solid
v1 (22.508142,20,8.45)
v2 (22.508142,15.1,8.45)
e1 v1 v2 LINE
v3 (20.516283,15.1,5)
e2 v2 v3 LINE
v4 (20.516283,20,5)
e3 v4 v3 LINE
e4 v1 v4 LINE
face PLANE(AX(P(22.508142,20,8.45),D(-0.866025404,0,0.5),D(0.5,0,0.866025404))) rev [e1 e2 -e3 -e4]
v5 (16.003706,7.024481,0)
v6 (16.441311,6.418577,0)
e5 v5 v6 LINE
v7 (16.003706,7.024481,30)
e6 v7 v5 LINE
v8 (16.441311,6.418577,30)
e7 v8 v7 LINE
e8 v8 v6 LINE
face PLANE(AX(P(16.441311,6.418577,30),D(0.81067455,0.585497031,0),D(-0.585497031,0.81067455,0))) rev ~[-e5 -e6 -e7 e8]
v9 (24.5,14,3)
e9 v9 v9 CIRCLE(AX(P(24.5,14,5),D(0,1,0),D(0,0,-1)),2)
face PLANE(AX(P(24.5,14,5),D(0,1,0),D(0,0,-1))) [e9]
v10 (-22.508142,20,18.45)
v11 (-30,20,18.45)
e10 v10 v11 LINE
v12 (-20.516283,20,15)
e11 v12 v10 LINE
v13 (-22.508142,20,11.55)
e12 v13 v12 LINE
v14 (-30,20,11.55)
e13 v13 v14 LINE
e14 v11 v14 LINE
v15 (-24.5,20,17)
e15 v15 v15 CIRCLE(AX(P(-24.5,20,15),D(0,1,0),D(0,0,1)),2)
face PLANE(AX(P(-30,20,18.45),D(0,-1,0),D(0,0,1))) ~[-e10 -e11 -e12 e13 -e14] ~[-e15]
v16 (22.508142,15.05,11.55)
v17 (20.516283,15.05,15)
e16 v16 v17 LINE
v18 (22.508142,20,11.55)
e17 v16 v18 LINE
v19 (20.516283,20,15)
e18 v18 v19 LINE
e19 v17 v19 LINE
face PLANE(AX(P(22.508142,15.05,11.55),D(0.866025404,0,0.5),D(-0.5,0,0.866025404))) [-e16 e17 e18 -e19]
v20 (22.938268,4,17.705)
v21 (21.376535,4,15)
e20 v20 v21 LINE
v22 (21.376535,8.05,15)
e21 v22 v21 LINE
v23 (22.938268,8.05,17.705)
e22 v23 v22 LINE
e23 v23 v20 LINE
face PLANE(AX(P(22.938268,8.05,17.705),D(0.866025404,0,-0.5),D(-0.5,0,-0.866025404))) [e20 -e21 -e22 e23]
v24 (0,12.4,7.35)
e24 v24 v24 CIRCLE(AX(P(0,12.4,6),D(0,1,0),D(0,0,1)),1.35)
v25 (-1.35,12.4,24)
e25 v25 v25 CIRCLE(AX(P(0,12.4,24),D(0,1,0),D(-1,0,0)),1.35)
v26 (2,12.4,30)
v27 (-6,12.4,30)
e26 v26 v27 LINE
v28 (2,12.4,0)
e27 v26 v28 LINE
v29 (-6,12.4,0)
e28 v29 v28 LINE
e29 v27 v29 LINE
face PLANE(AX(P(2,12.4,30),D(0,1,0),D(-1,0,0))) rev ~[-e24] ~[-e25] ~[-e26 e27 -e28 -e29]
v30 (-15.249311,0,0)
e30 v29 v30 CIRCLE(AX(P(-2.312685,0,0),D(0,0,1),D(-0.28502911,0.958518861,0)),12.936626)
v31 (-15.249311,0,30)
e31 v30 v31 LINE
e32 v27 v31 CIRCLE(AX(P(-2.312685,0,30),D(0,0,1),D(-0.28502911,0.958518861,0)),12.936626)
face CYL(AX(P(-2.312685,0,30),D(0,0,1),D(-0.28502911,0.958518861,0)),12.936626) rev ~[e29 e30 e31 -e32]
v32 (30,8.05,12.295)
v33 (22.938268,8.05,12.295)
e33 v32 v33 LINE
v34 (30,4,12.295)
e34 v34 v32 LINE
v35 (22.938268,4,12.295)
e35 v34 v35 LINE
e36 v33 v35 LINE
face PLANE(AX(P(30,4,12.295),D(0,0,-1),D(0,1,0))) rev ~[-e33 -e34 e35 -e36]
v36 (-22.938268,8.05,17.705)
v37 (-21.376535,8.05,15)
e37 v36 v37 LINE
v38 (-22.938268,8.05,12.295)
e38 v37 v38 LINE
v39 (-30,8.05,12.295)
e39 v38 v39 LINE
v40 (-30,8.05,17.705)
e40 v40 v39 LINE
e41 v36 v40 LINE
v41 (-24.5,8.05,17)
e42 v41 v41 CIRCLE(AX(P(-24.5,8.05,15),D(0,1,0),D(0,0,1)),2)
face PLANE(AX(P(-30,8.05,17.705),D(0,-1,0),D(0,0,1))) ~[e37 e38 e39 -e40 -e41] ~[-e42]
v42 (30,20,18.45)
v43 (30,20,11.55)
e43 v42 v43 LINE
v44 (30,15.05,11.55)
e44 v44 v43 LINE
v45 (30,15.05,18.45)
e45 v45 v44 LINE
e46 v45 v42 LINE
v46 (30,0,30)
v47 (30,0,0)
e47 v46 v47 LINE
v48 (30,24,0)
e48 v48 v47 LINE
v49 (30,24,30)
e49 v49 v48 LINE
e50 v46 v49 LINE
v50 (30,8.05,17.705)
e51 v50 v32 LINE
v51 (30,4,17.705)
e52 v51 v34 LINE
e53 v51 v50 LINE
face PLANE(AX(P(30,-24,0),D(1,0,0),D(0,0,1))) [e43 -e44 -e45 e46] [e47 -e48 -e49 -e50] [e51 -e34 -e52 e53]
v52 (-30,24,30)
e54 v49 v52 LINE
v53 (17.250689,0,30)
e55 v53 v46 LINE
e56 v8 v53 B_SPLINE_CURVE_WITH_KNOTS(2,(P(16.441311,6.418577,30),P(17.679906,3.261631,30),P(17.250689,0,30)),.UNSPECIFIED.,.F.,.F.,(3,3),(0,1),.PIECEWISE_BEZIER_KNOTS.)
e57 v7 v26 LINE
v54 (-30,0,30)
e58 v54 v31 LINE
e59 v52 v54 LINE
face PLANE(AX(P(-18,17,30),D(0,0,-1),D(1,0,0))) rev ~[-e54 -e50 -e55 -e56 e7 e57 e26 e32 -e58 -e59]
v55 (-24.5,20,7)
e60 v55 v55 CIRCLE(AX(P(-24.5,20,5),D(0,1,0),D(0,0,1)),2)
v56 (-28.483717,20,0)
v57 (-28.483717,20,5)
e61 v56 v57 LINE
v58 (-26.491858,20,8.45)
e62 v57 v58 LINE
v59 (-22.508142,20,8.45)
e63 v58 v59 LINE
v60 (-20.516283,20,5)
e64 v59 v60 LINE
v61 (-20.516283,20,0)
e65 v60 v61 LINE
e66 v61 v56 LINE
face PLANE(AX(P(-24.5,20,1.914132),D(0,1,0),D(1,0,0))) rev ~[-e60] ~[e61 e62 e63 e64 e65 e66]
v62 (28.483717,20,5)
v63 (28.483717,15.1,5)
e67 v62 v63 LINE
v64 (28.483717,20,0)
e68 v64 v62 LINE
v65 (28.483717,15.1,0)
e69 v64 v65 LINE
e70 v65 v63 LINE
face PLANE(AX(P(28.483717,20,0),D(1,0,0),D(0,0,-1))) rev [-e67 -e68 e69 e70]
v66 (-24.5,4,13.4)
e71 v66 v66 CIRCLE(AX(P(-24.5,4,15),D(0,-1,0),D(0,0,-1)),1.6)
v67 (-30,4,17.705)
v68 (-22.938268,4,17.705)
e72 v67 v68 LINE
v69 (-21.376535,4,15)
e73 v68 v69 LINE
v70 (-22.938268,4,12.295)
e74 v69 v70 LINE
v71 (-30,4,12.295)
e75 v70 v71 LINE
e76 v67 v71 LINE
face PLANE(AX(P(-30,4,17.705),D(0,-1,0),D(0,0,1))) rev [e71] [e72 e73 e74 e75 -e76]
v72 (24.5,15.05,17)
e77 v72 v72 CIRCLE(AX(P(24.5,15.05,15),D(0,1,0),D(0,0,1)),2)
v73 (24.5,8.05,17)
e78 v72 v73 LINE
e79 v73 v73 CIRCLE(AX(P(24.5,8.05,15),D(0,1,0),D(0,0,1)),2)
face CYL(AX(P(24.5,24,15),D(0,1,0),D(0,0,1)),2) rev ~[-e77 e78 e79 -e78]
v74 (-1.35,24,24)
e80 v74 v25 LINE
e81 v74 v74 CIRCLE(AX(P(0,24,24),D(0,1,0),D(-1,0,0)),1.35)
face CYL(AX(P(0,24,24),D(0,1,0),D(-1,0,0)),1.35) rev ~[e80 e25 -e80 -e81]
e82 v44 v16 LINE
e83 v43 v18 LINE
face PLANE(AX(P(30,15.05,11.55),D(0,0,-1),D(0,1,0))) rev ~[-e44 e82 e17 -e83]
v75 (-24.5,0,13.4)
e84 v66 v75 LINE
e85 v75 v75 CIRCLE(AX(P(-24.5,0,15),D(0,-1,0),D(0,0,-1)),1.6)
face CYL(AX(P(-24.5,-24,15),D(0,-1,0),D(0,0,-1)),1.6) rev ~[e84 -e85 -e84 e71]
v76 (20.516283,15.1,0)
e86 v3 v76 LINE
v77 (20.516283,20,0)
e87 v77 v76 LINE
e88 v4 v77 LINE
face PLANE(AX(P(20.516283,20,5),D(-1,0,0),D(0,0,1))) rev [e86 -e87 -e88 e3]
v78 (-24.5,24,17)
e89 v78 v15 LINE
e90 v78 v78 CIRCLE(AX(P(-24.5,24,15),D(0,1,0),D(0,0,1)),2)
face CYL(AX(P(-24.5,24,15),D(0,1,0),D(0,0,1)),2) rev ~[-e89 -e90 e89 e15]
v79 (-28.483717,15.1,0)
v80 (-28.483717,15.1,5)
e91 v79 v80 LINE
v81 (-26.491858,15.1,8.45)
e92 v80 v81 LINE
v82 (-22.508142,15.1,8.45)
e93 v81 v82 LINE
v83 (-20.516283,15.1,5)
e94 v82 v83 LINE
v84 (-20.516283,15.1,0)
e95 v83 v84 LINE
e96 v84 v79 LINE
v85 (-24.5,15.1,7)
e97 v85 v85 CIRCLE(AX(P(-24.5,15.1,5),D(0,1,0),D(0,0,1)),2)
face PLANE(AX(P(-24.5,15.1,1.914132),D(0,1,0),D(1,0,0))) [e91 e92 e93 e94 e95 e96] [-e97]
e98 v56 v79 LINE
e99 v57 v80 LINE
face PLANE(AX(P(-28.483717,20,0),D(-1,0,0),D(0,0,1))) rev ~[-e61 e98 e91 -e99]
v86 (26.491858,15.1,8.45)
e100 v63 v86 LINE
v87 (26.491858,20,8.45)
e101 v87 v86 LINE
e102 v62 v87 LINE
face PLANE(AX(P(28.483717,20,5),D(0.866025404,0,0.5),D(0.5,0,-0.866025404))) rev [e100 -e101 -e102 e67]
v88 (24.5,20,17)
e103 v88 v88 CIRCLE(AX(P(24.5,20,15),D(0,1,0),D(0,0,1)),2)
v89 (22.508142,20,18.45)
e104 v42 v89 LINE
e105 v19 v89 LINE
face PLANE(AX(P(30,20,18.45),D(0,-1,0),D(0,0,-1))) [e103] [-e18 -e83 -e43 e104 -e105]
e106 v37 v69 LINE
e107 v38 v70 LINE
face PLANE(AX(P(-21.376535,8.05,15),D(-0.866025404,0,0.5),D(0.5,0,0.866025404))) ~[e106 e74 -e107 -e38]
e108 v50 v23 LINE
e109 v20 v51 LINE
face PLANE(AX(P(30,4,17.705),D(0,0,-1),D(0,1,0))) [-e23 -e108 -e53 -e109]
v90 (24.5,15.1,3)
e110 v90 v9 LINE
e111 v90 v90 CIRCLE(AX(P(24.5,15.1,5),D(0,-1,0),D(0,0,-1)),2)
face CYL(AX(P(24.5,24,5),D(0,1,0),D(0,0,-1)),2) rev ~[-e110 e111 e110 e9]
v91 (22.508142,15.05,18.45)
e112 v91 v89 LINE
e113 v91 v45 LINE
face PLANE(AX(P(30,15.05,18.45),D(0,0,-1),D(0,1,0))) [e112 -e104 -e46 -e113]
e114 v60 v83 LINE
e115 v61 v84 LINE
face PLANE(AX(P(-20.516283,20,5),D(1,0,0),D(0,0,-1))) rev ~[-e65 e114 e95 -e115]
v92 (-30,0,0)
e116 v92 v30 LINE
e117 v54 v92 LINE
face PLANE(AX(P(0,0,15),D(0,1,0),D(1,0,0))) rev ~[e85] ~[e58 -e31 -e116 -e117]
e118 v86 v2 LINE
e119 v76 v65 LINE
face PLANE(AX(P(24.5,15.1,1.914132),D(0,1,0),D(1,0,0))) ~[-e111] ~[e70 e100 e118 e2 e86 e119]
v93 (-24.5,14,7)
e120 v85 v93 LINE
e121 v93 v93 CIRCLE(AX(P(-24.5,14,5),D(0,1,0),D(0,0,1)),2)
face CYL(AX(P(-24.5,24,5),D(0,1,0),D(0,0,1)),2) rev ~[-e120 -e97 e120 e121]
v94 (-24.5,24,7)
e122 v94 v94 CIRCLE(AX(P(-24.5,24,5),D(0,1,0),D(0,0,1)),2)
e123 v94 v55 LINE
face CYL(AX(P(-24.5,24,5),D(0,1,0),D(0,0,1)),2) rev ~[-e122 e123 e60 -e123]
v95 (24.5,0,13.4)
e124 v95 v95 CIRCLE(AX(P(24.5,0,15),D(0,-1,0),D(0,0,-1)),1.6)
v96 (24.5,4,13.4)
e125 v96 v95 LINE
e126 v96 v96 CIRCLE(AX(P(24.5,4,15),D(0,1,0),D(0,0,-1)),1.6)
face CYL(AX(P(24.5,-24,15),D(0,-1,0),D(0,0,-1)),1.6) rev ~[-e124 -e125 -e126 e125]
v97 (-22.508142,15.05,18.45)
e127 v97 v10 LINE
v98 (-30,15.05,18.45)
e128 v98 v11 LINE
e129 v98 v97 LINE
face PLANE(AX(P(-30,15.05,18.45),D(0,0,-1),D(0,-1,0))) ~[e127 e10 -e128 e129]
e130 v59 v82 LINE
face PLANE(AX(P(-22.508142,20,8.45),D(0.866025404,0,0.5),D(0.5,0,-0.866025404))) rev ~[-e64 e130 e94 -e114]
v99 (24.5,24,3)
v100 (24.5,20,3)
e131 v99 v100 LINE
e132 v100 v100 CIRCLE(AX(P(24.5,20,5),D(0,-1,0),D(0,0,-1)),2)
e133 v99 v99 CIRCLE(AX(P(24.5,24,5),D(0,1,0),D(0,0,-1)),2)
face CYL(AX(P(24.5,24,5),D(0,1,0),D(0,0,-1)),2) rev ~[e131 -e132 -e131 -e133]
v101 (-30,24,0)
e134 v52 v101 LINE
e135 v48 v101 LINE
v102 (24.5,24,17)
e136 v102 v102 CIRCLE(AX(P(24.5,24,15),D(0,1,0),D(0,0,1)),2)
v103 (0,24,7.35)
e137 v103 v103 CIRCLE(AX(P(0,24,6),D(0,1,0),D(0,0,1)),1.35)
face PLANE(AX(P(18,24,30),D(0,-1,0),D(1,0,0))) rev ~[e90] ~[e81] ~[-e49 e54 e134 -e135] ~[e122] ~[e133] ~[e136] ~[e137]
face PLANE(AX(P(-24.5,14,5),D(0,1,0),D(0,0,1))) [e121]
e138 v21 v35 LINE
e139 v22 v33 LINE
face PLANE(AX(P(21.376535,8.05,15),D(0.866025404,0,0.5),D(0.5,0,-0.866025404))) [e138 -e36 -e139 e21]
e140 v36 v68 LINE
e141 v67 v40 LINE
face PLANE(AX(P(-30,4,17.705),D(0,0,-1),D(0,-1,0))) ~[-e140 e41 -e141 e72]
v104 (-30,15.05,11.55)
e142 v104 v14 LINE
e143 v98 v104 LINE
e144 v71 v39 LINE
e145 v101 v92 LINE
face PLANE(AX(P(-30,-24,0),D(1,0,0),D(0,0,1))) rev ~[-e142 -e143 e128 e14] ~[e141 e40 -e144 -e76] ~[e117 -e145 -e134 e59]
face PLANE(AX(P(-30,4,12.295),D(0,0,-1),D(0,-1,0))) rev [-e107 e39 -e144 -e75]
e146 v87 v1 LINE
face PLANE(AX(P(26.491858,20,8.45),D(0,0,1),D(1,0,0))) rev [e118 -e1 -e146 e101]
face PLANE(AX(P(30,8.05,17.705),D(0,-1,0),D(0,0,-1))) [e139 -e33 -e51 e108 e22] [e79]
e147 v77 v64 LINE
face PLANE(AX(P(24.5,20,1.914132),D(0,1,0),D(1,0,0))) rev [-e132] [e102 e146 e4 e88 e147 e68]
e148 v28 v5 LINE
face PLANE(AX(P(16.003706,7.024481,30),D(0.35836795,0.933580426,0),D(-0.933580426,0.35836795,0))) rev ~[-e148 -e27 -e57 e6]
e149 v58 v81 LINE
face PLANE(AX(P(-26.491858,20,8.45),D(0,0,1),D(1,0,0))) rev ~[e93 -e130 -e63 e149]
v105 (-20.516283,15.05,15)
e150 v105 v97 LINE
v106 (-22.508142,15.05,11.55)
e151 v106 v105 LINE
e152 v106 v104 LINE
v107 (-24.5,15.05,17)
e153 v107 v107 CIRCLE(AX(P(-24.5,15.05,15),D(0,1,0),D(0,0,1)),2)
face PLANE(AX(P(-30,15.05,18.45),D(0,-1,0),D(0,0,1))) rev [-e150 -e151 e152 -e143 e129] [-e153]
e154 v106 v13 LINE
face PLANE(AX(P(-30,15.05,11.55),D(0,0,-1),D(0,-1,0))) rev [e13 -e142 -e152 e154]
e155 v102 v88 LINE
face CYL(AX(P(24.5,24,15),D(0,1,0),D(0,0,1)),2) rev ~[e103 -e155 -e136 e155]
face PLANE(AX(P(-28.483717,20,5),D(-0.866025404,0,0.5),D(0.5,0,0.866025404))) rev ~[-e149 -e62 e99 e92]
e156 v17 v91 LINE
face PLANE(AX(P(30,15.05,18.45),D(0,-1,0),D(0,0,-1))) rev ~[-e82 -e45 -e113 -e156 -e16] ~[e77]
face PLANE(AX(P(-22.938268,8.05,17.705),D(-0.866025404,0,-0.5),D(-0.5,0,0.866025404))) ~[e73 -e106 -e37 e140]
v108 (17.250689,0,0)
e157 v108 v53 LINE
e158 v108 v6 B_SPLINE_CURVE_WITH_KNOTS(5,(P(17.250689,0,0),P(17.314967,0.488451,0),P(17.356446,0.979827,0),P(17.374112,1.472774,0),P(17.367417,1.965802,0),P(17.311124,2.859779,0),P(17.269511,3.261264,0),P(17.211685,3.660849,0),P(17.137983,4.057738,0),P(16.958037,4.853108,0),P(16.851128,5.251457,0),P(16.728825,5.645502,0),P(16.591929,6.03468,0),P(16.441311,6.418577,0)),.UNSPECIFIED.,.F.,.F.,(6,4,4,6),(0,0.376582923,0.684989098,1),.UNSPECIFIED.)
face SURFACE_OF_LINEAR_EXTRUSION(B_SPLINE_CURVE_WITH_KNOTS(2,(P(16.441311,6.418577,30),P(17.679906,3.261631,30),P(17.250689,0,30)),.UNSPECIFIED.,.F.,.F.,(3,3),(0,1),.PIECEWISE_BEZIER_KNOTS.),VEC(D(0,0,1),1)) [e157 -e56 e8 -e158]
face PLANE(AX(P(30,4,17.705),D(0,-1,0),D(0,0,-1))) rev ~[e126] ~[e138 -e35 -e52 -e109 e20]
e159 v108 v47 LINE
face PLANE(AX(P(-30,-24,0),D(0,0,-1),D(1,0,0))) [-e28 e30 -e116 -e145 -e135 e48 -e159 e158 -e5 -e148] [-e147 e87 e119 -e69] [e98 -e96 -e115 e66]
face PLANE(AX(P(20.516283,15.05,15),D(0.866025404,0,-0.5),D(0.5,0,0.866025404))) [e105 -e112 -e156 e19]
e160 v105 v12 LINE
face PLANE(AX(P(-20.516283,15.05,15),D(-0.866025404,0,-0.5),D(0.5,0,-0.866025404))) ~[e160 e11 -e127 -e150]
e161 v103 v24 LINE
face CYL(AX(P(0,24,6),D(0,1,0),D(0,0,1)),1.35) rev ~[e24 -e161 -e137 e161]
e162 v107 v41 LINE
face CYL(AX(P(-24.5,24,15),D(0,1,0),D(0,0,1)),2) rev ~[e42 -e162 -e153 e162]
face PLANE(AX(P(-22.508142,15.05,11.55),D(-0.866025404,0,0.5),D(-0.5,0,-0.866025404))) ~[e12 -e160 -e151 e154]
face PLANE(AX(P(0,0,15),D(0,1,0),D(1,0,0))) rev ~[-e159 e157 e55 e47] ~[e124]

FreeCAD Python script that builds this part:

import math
import FreeCAD as App
import Part
import Sketcher

V = App.Vector
Q = App.Units.Quantity

doc = App.newDocument("Part")
params = doc.addObject("Spreadsheet::Sheet", "Params")
for row, (alias, value) in enumerate([
    ("sketch1_width", "60 mm"),
    ("sketch1_height", "34 mm"),
    ("pad1_length", "30 mm"),
    ("sketch2_width", "12 mm"),
    ("sketch2_height", "23 mm"),
    ("pad2_length", "80 mm"),
    ("sketch3_diameter", "4 mm"),
    ("pocket1_length", "10 mm"),
    ("sketch4_width", "8 mm"),
    ("sketch4_length", "15 mm"),
    ("pocket2_length", "66 mm"),
    ("sketch5_width", "17.2 mm"),
    ("sketch5_height", "4.5 mm"),
    ("pocket3_length", "8.8 mm"),
    ("sketch6_diameter", "3.2 mm"),
    ("sketch7_diameter", "3.2 mm"),
    ("sketch7_width", "60 mm"),
    ("sketch7_height", "30 mm"),
    ("pad3_length", "7 mm"),
    ("sketch8_width", "36 mm"),
    ("sketch8_height", "30 mm"),
    ("pad4_length", "7 mm"),
    ("sketch9_width", "12 mm"),
    ("sketch9_height", "50 mm"),
    ("sketch10_width", "12 mm"),
    ("sketch10_height", "16 mm"),
    ("sketch11_width", "12 mm"),
    ("sketch11_height", "23 mm"),
    ("pocket7_length", "50 mm"),
    ("sketch12_width", "12 mm"),
    ("sketch12_height", "16 mm"),
    ("sketch13_width", "60 mm"),
    ("sketch13_height", "30 mm"),
    ("pocket9_length", "34 mm"),
    ("sketch14_height", "6.9 mm"),
    ("sketch14_width", "4.95 mm"),
    ("sketch14_height2", "5.41 mm"),
    ("pocket10_length", "5.5 mm"),
    ("sketch16_diameter", "2.7 mm"),
    ("sketch17_diameter", "3.8 mm"),
    ("pocket13_length", "7 mm"),
    ("sketch18_diameter", "4 mm"),
    ("pocket14_length", "10 mm"),
    ("sketch19_diameter", "4 mm"),
    ("sketch19_height", "5 mm"),
    ("pocket15_length", "4.9 mm"),
    ("pocket16_length", "4.05 mm"),
    ("pocket17_length", "4.95 mm"),
    ("sketch22_diameter", "4 mm"),
    ("pocket18_length", "4 mm"),
    ("pocket19_length", "15.95 mm"),
    ("sketch23_diameter", "4 mm"),
    ("pocket20_length", "4 mm"),
    ("pocket21_length", "15.95 mm"),
], start=1):
    params.set(f"A{row}", alias)
    params.set(f"B{row}", "=" + value)
    params.setAlias(f"B{row}", alias)

body = doc.addObject("PartDesign::Body", "Body")

sketch1 = doc.addObject("Sketcher::SketchObject", "Sketch")
body.addObject(sketch1)
sketch1.AttachmentSupport = (doc.XY_Plane, [""])
sketch1.MapMode = "FlatFace"
sketch1.addGeometry([
    Part.LineSegment(V(-30, 17, 0), V(-30, -17, 0)),
    Part.LineSegment(V(-30, -17, 0), V(30, -17, 0)),
    Part.LineSegment(V(30, -17, 0), V(30, 17, 0)),
    Part.LineSegment(V(30, 17, 0), V(-30, 17, 0)),
], False)
sketch1.addConstraint([
    Sketcher.Constraint("Coincident", 0, 2, 1, 1),
    Sketcher.Constraint("Coincident", 1, 2, 2, 1),
    Sketcher.Constraint("Coincident", 2, 2, 3, 1),
    Sketcher.Constraint("Coincident", 3, 2, 0, 1),
    Sketcher.Constraint("Vertical", 0),
    Sketcher.Constraint("Horizontal", 1),
    Sketcher.Constraint("Vertical", 2),
    Sketcher.Constraint("Horizontal", 3),
    Sketcher.Constraint("Symmetric", 0, 2, 2, 2, -1, 1),
    Sketcher.Constraint("DistanceX", 1, 1, 1, 2, 60.0),
    Sketcher.Constraint("DistanceY", 0, 2, 0, 1, 34.0),
])
sketch1.setExpression("Constraints[9]", "Params.sketch1_width")
sketch1.setExpression("Constraints[10]", "Params.sketch1_height")
pad1 = doc.addObject("PartDesign::Pad", "Pad")
body.addObject(pad1)
pad1.Profile = sketch1
pad1.setExpression("Length", "Params.pad1_length")

sketch2 = doc.addObject("Sketcher::SketchObject", "Sketch001")
body.addObject(sketch2)
sketch2.AttachmentSupport = (doc.XY_Plane, [""])
sketch2.MapMode = "FlatFace"
sketch2.addGeometry([
    Part.LineSegment(V(-18, 40, 0), V(-18, 17, 0)),
    Part.LineSegment(V(-18, 17, 0), V(-30, 17, 0)),
    Part.LineSegment(V(-30, 17, 0), V(-30, 40, 0)),
    Part.LineSegment(V(-30, 40, 0), V(-18, 40, 0)),
    Part.LineSegment(V(30, 40, 0), V(30, 17, 0)),
    Part.LineSegment(V(30, 17, 0), V(18, 17, 0)),
    Part.LineSegment(V(18, 17, 0), V(18, 40, 0)),
    Part.LineSegment(V(18, 40, 0), V(30, 40, 0)),
], False)
sketch2.addConstraint([
    Sketcher.Constraint("Coincident", 0, 2, 1, 1),
    Sketcher.Constraint("Coincident", 1, 2, 2, 1),
    Sketcher.Constraint("Coincident", 2, 2, 3, 1),
    Sketcher.Constraint("Coincident", 3, 2, 0, 1),
    Sketcher.Constraint("Coincident", 4, 2, 5, 1),
    Sketcher.Constraint("Coincident", 5, 2, 6, 1),
    Sketcher.Constraint("Coincident", 6, 2, 7, 1),
    Sketcher.Constraint("Coincident", 7, 2, 4, 1),
    Sketcher.Constraint("Vertical", 0),
    Sketcher.Constraint("Horizontal", 1),
    Sketcher.Constraint("Vertical", 2),
    Sketcher.Constraint("Horizontal", 3),
    Sketcher.Constraint("Vertical", 4),
    Sketcher.Constraint("Horizontal", 5),
    Sketcher.Constraint("Vertical", 6),
    Sketcher.Constraint("Horizontal", 7),
    Sketcher.Constraint("Symmetric", 1, 2, 4, 2, -2),
    Sketcher.Constraint("Symmetric", 3, 2, 6, 2, -2),
    Sketcher.Constraint("DistanceX", 1, 2, 1, 1, 12.0),
    Sketcher.Constraint("DistanceY", 0, 2, 0, 1, 23.0),
    Sketcher.Constraint("DistanceX", 0, 2, -1, 1, 18.0),
    Sketcher.Constraint("DistanceY", -1, 1, 0, 2, 17.0),
])
sketch2.setExpression("Constraints[18]", "Params.sketch2_width")
sketch2.setExpression("Constraints[19]", "Params.sketch2_height")
pad2 = doc.addObject("PartDesign::Pad", "Pad001")
body.addObject(pad2)
pad2.Profile = sketch2
pad2.setExpression("Length", "Params.pad2_length")

sketch3 = doc.addObject("Sketcher::SketchObject", "Sketch002")
body.addObject(sketch3)
sketch3.AttachmentSupport = (doc.XY_Plane, [""])
sketch3.MapMode = "FlatFace"
sketch3.AttachmentOffset = App.Placement(V(0, 0, 80), App.Rotation())
sketch3.addGeometry([
    Part.Circle(V(24.5, 34, 0), V(0, 0, 1), 2),
    Part.Circle(V(24.5, 24, 0), V(0, 0, 1), 2),
    Part.Circle(V(-24.5, 24, 0), V(0, 0, 1), 2),
    Part.Circle(V(-24.5, 34, 0), V(0, 0, 1), 2),
], False)
sketch3.addConstraint([
    Sketcher.Constraint("Equal", 0, 1),
    Sketcher.Constraint("Equal", 1, 2),
    Sketcher.Constraint("Equal", 2, 3),
    Sketcher.Constraint("Symmetric", 1, 3, 2, 3, -2),
    Sketcher.Constraint("Symmetric", 0, 3, 3, 3, -2),
    Sketcher.Constraint("Vertical", 0, 3, 1, 3),
    Sketcher.Constraint("Diameter", 0, 4.0),
    Sketcher.Constraint("DistanceY", -1, 1, 0, 3, 34.0),
    Sketcher.Constraint("DistanceY", -1, 1, 1, 3, 24.0),
    Sketcher.Constraint("DistanceX", 2, 3, 1, 3, 49.0),
])
sketch3.setExpression("Constraints[6]", "Params.sketch3_diameter")
pocket1 = doc.addObject("PartDesign::Pocket", "Pocket")
body.addObject(pocket1)
pocket1.Profile = sketch3
pocket1.setExpression("Length", "Params.pocket1_length")

sketch4 = doc.addObject("Sketcher::SketchObject", "Sketch003")
body.addObject(sketch4)
sketch4.AttachmentSupport = (doc.XY_Plane, [""])
sketch4.MapMode = "FlatFace"
sketch4.AttachmentOffset = App.Placement(V(0, 0, 30), App.Rotation())
sketch4.addGeometry([
    Part.LineSegment(V(2, 12, 0), V(-6, 12, 0)),
    Part.ArcOfCircle(Part.Circle(V(-2, 0, 0), V(0, 0, 1), 13), math.radians(107), math.radians(253)),
    Part.LineSegment(V(-6, -12, 0), V(2, -12, 0)),
    Part.LineSegment(V(2, -12, 0), V(16, -7, 0)),
    Part.ArcOfCircle(Part.Circle(V(-3, 0, 0), V(0, 0, 1), 20), math.radians(-20), math.radians(20)),
    Part.LineSegment(V(16, 7, 0), V(2, 12, 0)),
], False)
sketch4.addConstraint([
    Sketcher.Constraint("Coincident", 0, 2, 1, 1),
    Sketcher.Constraint("Coincident", 1, 2, 2, 1),
    Sketcher.Constraint("Coincident", 2, 2, 3, 1),
    Sketcher.Constraint("Coincident", 3, 2, 4, 1),
    Sketcher.Constraint("Coincident", 4, 2, 5, 1),
    Sketcher.Constraint("Coincident", 5, 2, 0, 1),
    Sketcher.Constraint("Horizontal", 0),
    Sketcher.Constraint("Horizontal", 2),
    Sketcher.Constraint("Symmetric", 0, 2, 1, 2, -1),
    Sketcher.Constraint("Symmetric", 3, 2, 4, 2, -1),
    Sketcher.Constraint("Vertical", 2, 2, 5, 2),
    Sketcher.Constraint("DistanceX", 0, 2, 0, 1, 8.0),
    Sketcher.Constraint("Angle", 3, Q("21 deg")),
    Sketcher.Constraint("Distance", 3, 15.0),
    Sketcher.Constraint("DistanceX", 0, 2, -1, 1, 6.0),
    Sketcher.Constraint("DistanceY", -1, 1, 0, 2, 12.4),
    Sketcher.Constraint("Radius", 1, 12.936626),
    Sketcher.Constraint("Radius", 4, 20.408583),
])
sketch4.setExpression("Constraints[11]", "Params.sketch4_width")
sketch4.setExpression("Constraints[13]", "Params.sketch4_length")
pocket2 = doc.addObject("PartDesign::Pocket", "Pocket001")
body.addObject(pocket2)
pocket2.Profile = sketch4
pocket2.setExpression("Length", "Params.pocket2_length")

sketch5 = doc.addObject("Sketcher::SketchObject", "Sketch004")
body.addObject(sketch5)
sketch5.AttachmentSupport = (doc.YZ_Plane, [""])
sketch5.MapMode = "FlatFace"
sketch5.AttachmentOffset = App.Placement(V(0, 0, 30), App.Rotation())
sketch5.addGeometry([
    Part.LineSegment(V(37.4, 70, 0), V(20.2, 70, 0)),
    Part.LineSegment(V(20.2, 70, 0), V(20.2, 65.5, 0)),
    Part.LineSegment(V(20.2, 65.5, 0), V(37.4, 65.5, 0)),
    Part.LineSegment(V(37.4, 65.5, 0), V(37.4, 70, 0)),
], False)
sketch5.addConstraint([
    Sketcher.Constraint("Coincident", 0, 2, 1, 1),
    Sketcher.Constraint("Coincident", 1, 2, 2, 1),
    Sketcher.Constraint("Coincident", 2, 2, 3, 1),
    Sketcher.Constraint("Coincident", 3, 2, 0, 1),
    Sketcher.Constraint("Horizontal", 0),
    Sketcher.Constraint("Vertical", 1),
    Sketcher.Constraint("Horizontal", 2),
    Sketcher.Constraint("Vertical", 3),
    Sketcher.Constraint("DistanceX", 0, 2, 0, 1, 17.2),
    Sketcher.Constraint("DistanceY", 1, 2, 1, 1, 4.5),
    Sketcher.Constraint("DistanceY", -1, 1, 0, 2, 70.0),
    Sketcher.Constraint("DistanceX", -1, 1, 0, 2, 20.2),
])
sketch5.setExpression("Constraints[8]", "Params.sketch5_width")
sketch5.setExpression("Constraints[9]", "Params.sketch5_height")
pocket3 = doc.addObject("PartDesign::Pocket", "Pocket002")
body.addObject(pocket3)
pocket3.Profile = sketch5
pocket3.setExpression("Length", "Params.pocket3_length")

sketch6 = doc.addObject("Sketcher::SketchObject", "Sketch005")
body.addObject(sketch6)
sketch6.AttachmentSupport = (doc.XZ_Plane, [""])
sketch6.MapMode = "FlatFace"
sketch6.AttachmentOffset = App.Placement(V(0, 0, 17), App.Rotation())
sketch6.addGeometry([
    Part.Circle(V(24.5, 15, 0), V(0, 0, 1), 1.6),
    Part.Circle(V(-24.5, 15, 0), V(0, 0, 1), 1.6),
], False)
sketch6.addConstraint([
    Sketcher.Constraint("Equal", 0, 1),
    Sketcher.Constraint("Symmetric", 0, 3, 1, 3, -2),
    Sketcher.Constraint("Diameter", 0, 3.2),
    Sketcher.Constraint("DistanceY", -1, 1, 0, 3, 15.0),
    Sketcher.Constraint("DistanceX", 1, 3, 0, 3, 49.0),
])
sketch6.setExpression("Constraints[2]", "Params.sketch6_diameter")
pocket4 = doc.addObject("PartDesign::Pocket", "Pocket003")
body.addObject(pocket4)
pocket4.Profile = sketch6
pocket4.Type = "ThroughAll"
doc.recompute()

mirrored = doc.addObject("PartDesign::Mirrored", "Mirrored")
body.addObject(mirrored)
mirrored.Originals = [pocket3]
mirrored.MirrorPlane = (doc.YZ_Plane, [""])
body.Tip = mirrored

sketch7 = doc.addObject("Sketcher::SketchObject", "Sketch006")
body.addObject(sketch7)
sketch7.AttachmentSupport = (doc.XZ_Plane, [""])
sketch7.MapMode = "FlatFace"
sketch7.AttachmentOffset = App.Placement(V(0, 0, 24), App.Rotation())
sketch7.addGeometry([
    Part.LineSegment(V(-30, 30, 0), V(-30, 0, 0)),
    Part.LineSegment(V(-30, 0, 0), V(30, 0, 0)),
    Part.LineSegment(V(30, 0, 0), V(30, 30, 0)),
    Part.LineSegment(V(30, 30, 0), V(-30, 30, 0)),
    Part.Circle(V(-24.5, 15, 0), V(0, 0, 1), 1.6),
    Part.Circle(V(24.5, 15, 0), V(0, 0, 1), 1.6),
], False)
sketch7.addConstraint([
    Sketcher.Constraint("Coincident", 0, 2, 1, 1),
    Sketcher.Constraint("Coincident", 1, 2, 2, 1),
    Sketcher.Constraint("Coincident", 2, 2, 3, 1),
    Sketcher.Constraint("Coincident", 3, 2, 0, 1),
    Sketcher.Constraint("Vertical", 0),
    Sketcher.Constraint("Horizontal", 1),
    Sketcher.Constraint("Vertical", 2),
    Sketcher.Constraint("Horizontal", 3),
    Sketcher.Constraint("Equal", 4, 5),
    Sketcher.Constraint("Symmetric", 0, 2, 1, 2, -1, 1),
    Sketcher.Constraint("Symmetric", 4, 3, 5, 3, -2),
    Sketcher.Constraint("Diameter", 4, 3.2),
    Sketcher.Constraint("DistanceX", 1, 1, 1, 2, 60.0),
    Sketcher.Constraint("DistanceY", 0, 2, 0, 1, 30.0),
    Sketcher.Constraint("DistanceY", -1, 1, 4, 3, 15.0),
    Sketcher.Constraint("DistanceX", 4, 3, 5, 3, 49.0),
])
sketch7.setExpression("Constraints[11]", "Params.sketch7_diameter")
sketch7.setExpression("Constraints[12]", "Params.sketch7_width")
sketch7.setExpression("Constraints[13]", "Params.sketch7_height")
pad3 = doc.addObject("PartDesign::Pad", "Pad002")
body.addObject(pad3)
pad3.Profile = sketch7
pad3.setExpression("Length", "Params.pad3_length")
pad3.Reversed = True

sketch8 = doc.addObject("Sketcher::SketchObject", "Sketch007")
body.addObject(sketch8)
sketch8.AttachmentSupport = (doc.XZ_Plane, [""])
sketch8.MapMode = "FlatFace"
sketch8.AttachmentOffset = App.Placement(V(0, 0, -17), App.Rotation())
sketch8.addGeometry([
    Part.LineSegment(V(-18, 0, 0), V(-18, 30, 0)),
    Part.LineSegment(V(-18, 30, 0), V(18, 30, 0)),
    Part.LineSegment(V(18, 30, 0), V(18, 0, 0)),
    Part.LineSegment(V(18, 0, 0), V(-18, 0, 0)),
], False)
sketch8.addConstraint([
    Sketcher.Constraint("Coincident", 0, 2, 1, 1),
    Sketcher.Constraint("Coincident", 1, 2, 2, 1),
    Sketcher.Constraint("Coincident", 2, 2, 3, 1),
    Sketcher.Constraint("Coincident", 3, 2, 0, 1),
    Sketcher.Constraint("Vertical", 0),
    Sketcher.Constraint("Horizontal", 1),
    Sketcher.Constraint("Vertical", 2),
    Sketcher.Constraint("Horizontal", 3),
    Sketcher.Constraint("Symmetric", 2, 2, 3, 2, -1, 1),
    Sketcher.Constraint("DistanceX", 1, 1, 1, 2, 36.0),
    Sketcher.Constraint("DistanceY", 0, 1, 0, 2, 30.0),
])
sketch8.setExpression("Constraints[9]", "Params.sketch8_width")
sketch8.setExpression("Constraints[10]", "Params.sketch8_height")
pad4 = doc.addObject("PartDesign::Pad", "Pad003")
body.addObject(pad4)
pad4.Profile = sketch8
pad4.setExpression("Length", "Params.pad4_length")
pad4.Reversed = True

sketch9 = doc.addObject("Sketcher::SketchObject", "Sketch008")
body.addObject(sketch9)
sketch9.AttachmentSupport = (doc.XZ_Plane, [""])
sketch9.MapMode = "FlatFace"
sketch9.AttachmentOffset = App.Placement(V(0, 0, -17), App.Rotation())
sketch9.addGeometry([
    Part.LineSegment(V(18, 80, 0), V(18, 30, 0)),
    Part.LineSegment(V(18, 30, 0), V(30, 30, 0)),
    Part.LineSegment(V(30, 30, 0), V(30, 80, 0)),
    Part.LineSegment(V(30, 80, 0), V(18, 80, 0)),
], False)
sketch9.addConstraint([
    Sketcher.Constraint("Coincident", 0, 2, 1, 1),
    Sketcher.Constraint("Coincident", 1, 2, 2, 1),
    Sketcher.Constraint("Coincident", 2, 2, 3, 1),
    Sketcher.Constraint("Coincident", 3, 2, 0, 1),
    Sketcher.Constraint("Vertical", 0),
    Sketcher.Constraint("Horizontal", 1),
    Sketcher.Constraint("Vertical", 2),
    Sketcher.Constraint("Horizontal", 3),
    Sketcher.Constraint("DistanceX", 1, 1, 1, 2, 12.0),
    Sketcher.Constraint("DistanceY", 0, 2, 0, 1, 50.0),
    Sketcher.Constraint("DistanceX", -1, 1, 0, 2, 18.0),
    Sketcher.Constraint("DistanceY", -1, 1, 0, 2, 30.0),
])
sketch9.setExpression("Constraints[8]", "Params.sketch9_width")
sketch9.setExpression("Constraints[9]", "Params.sketch9_height")
pocket5 = doc.addObject("PartDesign::Pocket", "Pocket004")
body.addObject(pocket5)
pocket5.Profile = sketch9
pocket5.Type = "ThroughAll"

sketch10 = doc.addObject("Sketcher::SketchObject", "Sketch009")
body.addObject(sketch10)
sketch10.AttachmentSupport = (doc.XY_Plane, [""])
sketch10.MapMode = "FlatFace"
sketch10.AttachmentOffset = App.Placement(V(0, 0, 30), App.Rotation())
sketch10.addGeometry([
    Part.LineSegment(V(18, 40, 0), V(18, 24, 0)),
    Part.LineSegment(V(18, 24, 0), V(30, 24, 0)),
    Part.LineSegment(V(30, 24, 0), V(30, 40, 0)),
    Part.LineSegment(V(30, 40, 0), V(18, 40, 0)),
], False)
sketch10.addConstraint([
    Sketcher.Constraint("Coincident", 0, 2, 1, 1),
    Sketcher.Constraint("Coincident", 1, 2, 2, 1),
    Sketcher.Constraint("Coincident", 2, 2, 3, 1),
    Sketcher.Constraint("Coincident", 3, 2, 0, 1),
    Sketcher.Constraint("Vertical", 0),
    Sketcher.Constraint("Horizontal", 1),
    Sketcher.Constraint("Vertical", 2),
    Sketcher.Constraint("Horizontal", 3),
    Sketcher.Constraint("DistanceX", 1, 1, 1, 2, 12.0),
    Sketcher.Constraint("DistanceY", 0, 2, 0, 1, 16.0),
    Sketcher.Constraint("DistanceX", -1, 1, 0, 2, 18.0),
    Sketcher.Constraint("DistanceY", -1, 1, 0, 2, 24.0),
])
sketch10.setExpression("Constraints[8]", "Params.sketch10_width")
sketch10.setExpression("Constraints[9]", "Params.sketch10_height")
pocket6 = doc.addObject("PartDesign::Pocket", "Pocket005")
body.addObject(pocket6)
pocket6.Profile = sketch10
pocket6.Type = "ThroughAll"

sketch11 = doc.addObject("Sketcher::SketchObject", "Sketch010")
body.addObject(sketch11)
sketch11.AttachmentSupport = (doc.XY_Plane, [""])
sketch11.MapMode = "FlatFace"
sketch11.AttachmentOffset = App.Placement(V(0, 0, 80), App.Rotation())
sketch11.addGeometry([
    Part.LineSegment(V(-30, 40, 0), V(-30, 17, 0)),
    Part.LineSegment(V(-30, 17, 0), V(-18, 17, 0)),
    Part.LineSegment(V(-18, 17, 0), V(-18, 40, 0)),
    Part.LineSegment(V(-18, 40, 0), V(-30, 40, 0)),
], False)
sketch11.addConstraint([
    Sketcher.Constraint("Coincident", 0, 2, 1, 1),
    Sketcher.Constraint("Coincident", 1, 2, 2, 1),
    Sketcher.Constraint("Coincident", 2, 2, 3, 1),
    Sketcher.Constraint("Coincident", 3, 2, 0, 1),
    Sketcher.Constraint("Vertical", 0),
    Sketcher.Constraint("Horizontal", 1),
    Sketcher.Constraint("Vertical", 2),
    Sketcher.Constraint("Horizontal", 3),
    Sketcher.Constraint("DistanceX", 1, 1, 1, 2, 12.0),
    Sketcher.Constraint("DistanceY", 0, 2, 0, 1, 23.0),
    Sketcher.Constraint("DistanceX", 0, 2, -1, 1, 30.0),
    Sketcher.Constraint("DistanceY", -1, 1, 0, 2, 17.0),
])
sketch11.setExpression("Constraints[8]", "Params.sketch11_width")
sketch11.setExpression("Constraints[9]", "Params.sketch11_height")
pocket7 = doc.addObject("PartDesign::Pocket", "Pocket006")
body.addObject(pocket7)
pocket7.Profile = sketch11
pocket7.setExpression("Length", "Params.pocket7_length")

sketch12 = doc.addObject("Sketcher::SketchObject", "Sketch011")
body.addObject(sketch12)
sketch12.AttachmentSupport = (doc.XY_Plane, [""])
sketch12.MapMode = "FlatFace"
sketch12.AttachmentOffset = App.Placement(V(0, 0, 30), App.Rotation())
sketch12.addGeometry([
    Part.LineSegment(V(-30, 40, 0), V(-30, 24, 0)),
    Part.LineSegment(V(-30, 24, 0), V(-18, 24, 0)),
    Part.LineSegment(V(-18, 24, 0), V(-18, 40, 0)),
    Part.LineSegment(V(-18, 40, 0), V(-30, 40, 0)),
], False)
sketch12.addConstraint([
    Sketcher.Constraint("Coincident", 0, 2, 1, 1),
    Sketcher.Constraint("Coincident", 1, 2, 2, 1),
    Sketcher.Constraint("Coincident", 2, 2, 3, 1),
    Sketcher.Constraint("Coincident", 3, 2, 0, 1),
    Sketcher.Constraint("Vertical", 0),
    Sketcher.Constraint("Horizontal", 1),
    Sketcher.Constraint("Vertical", 2),
    Sketcher.Constraint("Horizontal", 3),
    Sketcher.Constraint("DistanceX", 1, 1, 1, 2, 12.0),
    Sketcher.Constraint("DistanceY", 0, 2, 0, 1, 16.0),
    Sketcher.Constraint("DistanceX", 0, 2, -1, 1, 30.0),
    Sketcher.Constraint("DistanceY", -1, 1, 0, 2, 24.0),
])
sketch12.setExpression("Constraints[8]", "Params.sketch12_width")
sketch12.setExpression("Constraints[9]", "Params.sketch12_height")
pocket8 = doc.addObject("PartDesign::Pocket", "Pocket007")
body.addObject(pocket8)
pocket8.Profile = sketch12
pocket8.Type = "ThroughAll"

sketch13 = doc.addObject("Sketcher::SketchObject", "Sketch012")
body.addObject(sketch13)
sketch13.AttachmentSupport = (doc.XZ_Plane, [""])
sketch13.MapMode = "FlatFace"
sketch13.addGeometry([
    Part.LineSegment(V(-30, 0, 0), V(-30, 30, 0)),
    Part.LineSegment(V(-30, 30, 0), V(30, 30, 0)),
    Part.LineSegment(V(30, 30, 0), V(30, 0, 0)),
    Part.LineSegment(V(30, 0, 0), V(-30, 0, 0)),
], False)
sketch13.addConstraint([
    Sketcher.Constraint("Coincident", 0, 2, 1, 1),
    Sketcher.Constraint("Coincident", 1, 2, 2, 1),
    Sketcher.Constraint("Coincident", 2, 2, 3, 1),
    Sketcher.Constraint("Coincident", 3, 2, 0, 1),
    Sketcher.Constraint("Vertical", 0),
    Sketcher.Constraint("Horizontal", 1),
    Sketcher.Constraint("Vertical", 2),
    Sketcher.Constraint("Horizontal", 3),
    Sketcher.Constraint("Symmetric", 2, 2, 3, 2, -1, 1),
    Sketcher.Constraint("DistanceX", 1, 1, 1, 2, 60.0),
    Sketcher.Constraint("DistanceY", 0, 1, 0, 2, 30.0),
])
sketch13.setExpression("Constraints[9]", "Params.sketch13_width")
sketch13.setExpression("Constraints[10]", "Params.sketch13_height")
pocket9 = doc.addObject("PartDesign::Pocket", "Pocket008")
body.addObject(pocket9)
pocket9.Profile = sketch13
pocket9.setExpression("Length", "Params.pocket9_length")
pocket9.Reversed = True

sketch14 = doc.addObject("Sketcher::SketchObject", "Sketch013")
body.addObject(sketch14)
sketch14.AttachmentSupport = (doc.YZ_Plane, [""])
sketch14.MapMode = "FlatFace"
sketch14.AttachmentOffset = App.Placement(V(0, 0, 30), App.Rotation())
sketch14.addGeometry([
    Part.LineSegment(V(20, 18.4, 0), V(15.1, 18.4, 0)),
    Part.LineSegment(V(15.1, 18.4, 0), V(15.1, 11.6, 0)),
    Part.LineSegment(V(15.1, 11.6, 0), V(20, 11.6, 0)),
    Part.LineSegment(V(20, 11.6, 0), V(20, 18.4, 0)),
    Part.LineSegment(V(8.1, 17.7, 0), V(4, 17.7, 0)),
    Part.LineSegment(V(4, 17.7, 0), V(4, 12.3, 0)),
    Part.LineSegment(V(4, 12.3, 0), V(8.1, 12.3, 0)),
    Part.LineSegment(V(8.1, 12.3, 0), V(8.1, 17.7, 0)),
], False)
sketch14.addConstraint([
    Sketcher.Constraint("Coincident", 0, 2, 1, 1),
    Sketcher.Constraint("Coincident", 1, 2, 2, 1),
    Sketcher.Constraint("Coincident", 2, 2, 3, 1),
    Sketcher.Constraint("Coincident", 3, 2, 0, 1),
    Sketcher.Constraint("Coincident", 4, 2, 5, 1),
    Sketcher.Constraint("Coincident", 5, 2, 6, 1),
    Sketcher.Constraint("Coincident", 6, 2, 7, 1),
    Sketcher.Constraint("Coincident", 7, 2, 4, 1),
    Sketcher.Constraint("Horizontal", 0),
    Sketcher.Constraint("Vertical", 1),
    Sketcher.Constraint("Horizontal", 2),
    Sketcher.Constraint("Vertical", 3),
    Sketcher.Constraint("Horizontal", 4),
    Sketcher.Constraint("Vertical", 5),
    Sketcher.Constraint("Horizontal", 6),
    Sketcher.Constraint("Vertical", 7),
    Sketcher.Constraint("DistanceY", 1, 2, 1, 1, 6.9),
    Sketcher.Constraint("DistanceX", -1, 1, 2, 2, 20.0),
    Sketcher.Constraint("DistanceX", -1, 1, 4, 2, 4.0),
    Sketcher.Constraint("DistanceX", 6, 2, 1, 2, 7.0),
    Sketcher.Constraint("DistanceX", 0, 2, 0, 1, 4.95),
    Sketcher.Constraint("DistanceY", 5, 2, 5, 1, 5.41),
    Sketcher.Constraint("DistanceY", -1, 1, 0, 2, 18.45),
    Sketcher.Constraint("DistanceY", -1, 1, 4, 2, 17.705),
])
sketch14.setExpression("Constraints[16]", "Params.sketch14_height")
sketch14.setExpression("Constraints[20]", "Params.sketch14_width")
sketch14.setExpression("Constraints[21]", "Params.sketch14_height2")
pocket10 = doc.addObject("PartDesign::Pocket", "Pocket009")
body.addObject(pocket10)
pocket10.Profile = sketch14
pocket10.setExpression("Length", "Params.pocket10_length")
doc.recompute()

mirrored2 = doc.addObject("PartDesign::Mirrored", "Mirrored001")
body.addObject(mirrored2)
mirrored2.Originals = [pocket10]
mirrored2.MirrorPlane = (doc.YZ_Plane, [""])
body.Tip = mirrored2

sketch15 = doc.addObject("Sketcher::SketchObject", "Sketch014")
body.addObject(sketch15)
sketch15.AttachmentSupport = (doc.XY_Plane, [""])
sketch15.MapMode = "FlatFace"
sketch15.AttachmentOffset = App.Placement(V(0, 0, 30), App.Rotation())
sketch15.addGeometry([
    Part.LineSegment(V(16.003706, 7.024481, 0), V(14.503028, 1.394481, 0)),
    Part.LineSegment(V(14.503028, 1.394481, 0), V(17.250689, 0, 0)),
    Part.BSplineCurve([V(16.441311, 6.418577, 0), V(17.679906, 3.261631, 0), V(17.250689, 0, 0)], [3, 3], [0, 1], False, 2, [1, 1, 1], False),
    Part.LineSegment(V(16.441311, 6.418577, 0), V(16.003706, 7.024481, 0)),
], False)
sketch15.addConstraint([
    Sketcher.Constraint("Block", 2),
    Sketcher.Constraint("Coincident", 0, 2, 1, 1),
    Sketcher.Constraint("Coincident", 1, 2, 2, 2),
    Sketcher.Constraint("Coincident", 2, 1, 3, 1),
    Sketcher.Constraint("Coincident", 3, 2, 0, 1),
    Sketcher.Constraint("DistanceY", 0, 2, 3, 2, 5.63),
    Sketcher.Constraint("Distance", 0, 5.826572),
    Sketcher.Constraint("Distance", 1, 3.081269),
    Sketcher.Constraint("DistanceY", -1, 1, 0, 2, 1.394481),
])
pocket11 = doc.addObject("PartDesign::Pocket", "Pocket010")
body.addObject(pocket11)
pocket11.Profile = sketch15
pocket11.Type = "ThroughAll"

sketch16 = doc.addObject("Sketcher::SketchObject", "Sketch015")
body.addObject(sketch16)
sketch16.AttachmentSupport = (doc.XZ_Plane, [""])
sketch16.MapMode = "FlatFace"
sketch16.AttachmentOffset = App.Placement(V(0, 0, -24), App.Rotation())
sketch16.addGeometry([
    Part.Circle(V(0, 6, 0), V(0, 0, 1), 1.4),
    Part.Circle(V(0, 24, 0), V(0, 0, 1), 1.4),
], False)
sketch16.addConstraint([
    Sketcher.Constraint("Equal", 0, 1),
    Sketcher.Constraint("PointOnObject", 0, 3, -2),
    Sketcher.Constraint("PointOnObject", 1, 3, -2),
    Sketcher.Constraint("Diameter", 0, 2.7),
    Sketcher.Constraint("DistanceY", -1, 1, 0, 3, 6.0),
    Sketcher.Constraint("DistanceY", -1, 1, 1, 3, 24.0),
])
sketch16.setExpression("Constraints[3]", "Params.sketch16_diameter")
pocket12 = doc.addObject("PartDesign::Pocket", "Pocket011")
body.addObject(pocket12)
pocket12.Profile = sketch16
pocket12.Type = "ThroughAll"
pocket12.Reversed = True

sketch17 = doc.addObject("Sketcher::SketchObject", "Sketch016")
body.addObject(sketch17)
sketch17.AttachmentSupport = (doc.XZ_Plane, [""])
sketch17.MapMode = "FlatFace"
sketch17.AttachmentOffset = App.Placement(V(0, 0, -24), App.Rotation())
sketch17.addGeometry([
    Part.Circle(V(-24.5, 15, 0), V(0, 0, 1), 1.9),
    Part.Circle(V(24.5, 15, 0), V(0, 0, 1), 1.9),
], False)
sketch17.addConstraint([
    Sketcher.Constraint("Equal", 0, 1),
    Sketcher.Constraint("Symmetric", 0, 3, 1, 3, -2),
    Sketcher.Constraint("Diameter", 0, 3.8),
    Sketcher.Constraint("DistanceY", -1, 1, 0, 3, 15.0),
    Sketcher.Constraint("DistanceX", 0, 3, 1, 3, 49.0),
])
sketch17.setExpression("Constraints[2]", "Params.sketch17_diameter")
pocket13 = doc.addObject("PartDesign::Pocket", "Pocket012")
body.addObject(pocket13)
pocket13.Profile = sketch17
pocket13.setExpression("Length", "Params.pocket13_length")
pocket13.Reversed = True

sketch18 = doc.addObject("Sketcher::SketchObject", "Sketch017")
body.addObject(sketch18)
sketch18.AttachmentSupport = (doc.XZ_Plane, [""])
sketch18.MapMode = "FlatFace"
sketch18.AttachmentOffset = App.Placement(V(0, 0, -24), App.Rotation())
sketch18.addGeometry([
    Part.Circle(V(-24.5, 5, 0), V(0, 0, 1), 2),
    Part.Circle(V(24.5, 5, 0), V(0, 0, 1), 2),
], False)
sketch18.addConstraint([
    Sketcher.Constraint("Equal", 0, 1),
    Sketcher.Constraint("Symmetric", 0, 3, 1, 3, -2),
    Sketcher.Constraint("Diameter", 0, 4.0),
    Sketcher.Constraint("DistanceY", -1, 1, 0, 3, 5.0),
    Sketcher.Constraint("DistanceX", 0, 3, 1, 3, 49.0),
])
sketch18.setExpression("Constraints[2]", "Params.sketch18_diameter")
pocket14 = doc.addObject("PartDesign::Pocket", "Pocket013")
body.addObject(pocket14)
pocket14.Profile = sketch18
pocket14.setExpression("Length", "Params.pocket14_length")
pocket14.Reversed = True

sketch19 = doc.addObject("Sketcher::SketchObject", "Sketch018")
body.addObject(sketch19)
sketch19.AttachmentSupport = (doc.XZ_Plane, [""])
sketch19.MapMode = "FlatFace"
sketch19.AttachmentOffset = App.Placement(V(0, 0, -20), App.Rotation())
sketch19.addGeometry([
    Part.LineSegment(V(-26.5, 8.4, 0), V(-22.5, 8.4, 0)),
    Part.LineSegment(V(-22.5, 8.4, 0), V(-20.5, 5, 0)),
    Part.LineSegment(V(-20.5, 5, 0), V(-20.5, 0, 0)),
    Part.LineSegment(V(-20.5, 0, 0), V(-28.5, 0, 0)),
    Part.LineSegment(V(-28.5, 0, 0), V(-28.5, 5, 0)),
    Part.LineSegment(V(-28.5, 5, 0), V(-26.5, 8.4, 0)),
    Part.Circle(V(-24.5, 5, 0), V(0, 0, 1), 2),
], False)
sketch19.addConstraint([
    Sketcher.Constraint("Coincident", 0, 2, 1, 1),
    Sketcher.Constraint("Coincident", 1, 2, 2, 1),
    Sketcher.Constraint("Coincident", 2, 2, 3, 1),
    Sketcher.Constraint("Coincident", 3, 2, 4, 1),
    Sketcher.Constraint("Coincident", 4, 2, 5, 1),
    Sketcher.Constraint("Coincident", 5, 2, 0, 1),
    Sketcher.Constraint("Horizontal", 0),
    Sketcher.Constraint("Vertical", 2),
    Sketcher.Constraint("Horizontal", 3),
    Sketcher.Constraint("Vertical", 4),
    Sketcher.Constraint("PointOnObject", 2, 2, -1),
    Sketcher.Constraint("Horizontal", 6, 3, 1, 2),
    Sketcher.Constraint("Horizontal", 1, 2, 4, 2),
    Sketcher.Constraint("Equal", 1, 5),
    Sketcher.Constraint("Diameter", 6, 4.0),
    Sketcher.Constraint("DistanceY", 2, 2, 2, 1, 5.0),
    Sketcher.Constraint("Angle", 1, Q("-60 deg")),
    Sketcher.Constraint("DistanceX", 6, 3, -1, 1, 24.5),
    Sketcher.Constraint("DistanceY", -1, 1, 0, 2, 8.45),
    Sketcher.Constraint("DistanceX", 0, 1, 0, 2, 3.983717),
    Sketcher.Constraint("DistanceX", 0, 2, -1, 1, 22.508142),
])
sketch19.setExpression("Constraints[14]", "Params.sketch19_diameter")
sketch19.setExpression("Constraints[15]", "Params.sketch19_height")
pocket15 = doc.addObject("PartDesign::Pocket", "Pocket014")
body.addObject(pocket15)
pocket15.Profile = sketch19
pocket15.setExpression("Length", "Params.pocket15_length")
pocket15.Reversed = True
doc.recompute()

mirrored3 = doc.addObject("PartDesign::Mirrored", "Mirrored002")
body.addObject(mirrored3)
mirrored3.Originals = [pocket15]
mirrored3.MirrorPlane = (doc.YZ_Plane, [""])
body.Tip = mirrored3

sketch20 = doc.addObject("Sketcher::SketchObject", "Sketch019")
body.addObject(sketch20)
sketch20.AttachmentSupport = (doc.XZ_Plane, [""])
sketch20.MapMode = "FlatFace"
sketch20.AttachmentOffset = App.Placement(V(0, 0, -8.05), App.Rotation())
sketch20.addGeometry([
    Part.LineSegment(V(26.1, 17.7, 0), V(22.9, 17.7, 0)),
    Part.LineSegment(V(22.9, 17.7, 0), V(21.4, 15, 0)),
    Part.LineSegment(V(21.4, 15, 0), V(22.9, 12.3, 0)),
    Part.LineSegment(V(22.9, 12.3, 0), V(26.1, 12.3, 0)),
    Part.LineSegment(V(26.1, 12.3, 0), V(27.6, 15, 0)),
    Part.LineSegment(V(27.6, 15, 0), V(26.1, 17.7, 0)),
], False)
sketch20.addConstraint([
    Sketcher.Constraint("Coincident", 0, 2, 1, 1),
    Sketcher.Constraint("Coincident", 1, 2, 2, 1),
    Sketcher.Constraint("Coincident", 2, 2, 3, 1),
    Sketcher.Constraint("Coincident", 3, 2, 4, 1),
    Sketcher.Constraint("Coincident", 4, 2, 5, 1),
    Sketcher.Constraint("Coincident", 5, 2, 0, 1),
    Sketcher.Constraint("Horizontal", 0),
    Sketcher.Constraint("Horizontal", 3),
    Sketcher.Constraint("Parallel", 1, 4),
    Sketcher.Constraint("Parallel", 2, 5),
    Sketcher.Constraint("Horizontal", 1, 2, 4, 2),
    Sketcher.Constraint("Vertical", 0, 2, 2, 2),
    Sketcher.Constraint("Vertical", 3, 2, 5, 2),
    Sketcher.Constraint("Angle", 1, Q("-120 deg")),
    Sketcher.Constraint("DistanceY", -1, 1, 1, 2, 15.0),
    Sketcher.Constraint("DistanceY", 2, 2, 0, 2, 5.41),
    Sketcher.Constraint("DistanceX", 0, 2, 0, 1, 3.123465),
    Sketcher.Constraint("DistanceX", -1, 1, 0, 2, 22.938268),
])
pocket16 = doc.addObject("PartDesign::Pocket", "Pocket015")
body.addObject(pocket16)
pocket16.Profile = sketch20
pocket16.setExpression("Length", "Params.pocket16_length")
pocket16.Reversed = True

sketch21 = doc.addObject("Sketcher::SketchObject", "Sketch020")
body.addObject(sketch21)
sketch21.AttachmentSupport = (doc.XZ_Plane, [""])
sketch21.MapMode = "FlatFace"
sketch21.AttachmentOffset = App.Placement(V(0, 0, -15.05), App.Rotation())
sketch21.addGeometry([
    Part.LineSegment(V(26.5, 11.6, 0), V(22.5, 11.6, 0)),
    Part.LineSegment(V(22.5, 11.6, 0), V(20.5, 15, 0)),
    Part.LineSegment(V(20.5, 15, 0), V(22.5, 18.4, 0)),
    Part.LineSegment(V(22.5, 18.4, 0), V(26.5, 18.4, 0)),
    Part.LineSegment(V(26.5, 18.4, 0), V(28.5, 15, 0)),
    Part.LineSegment(V(28.5, 15, 0), V(26.5, 11.6, 0)),
], False)
sketch21.addConstraint([
    Sketcher.Constraint("Coincident", 0, 2, 1, 1),
    Sketcher.Constraint("Coincident", 1, 2, 2, 1),
    Sketcher.Constraint("Coincident", 2, 2, 3, 1),
    Sketcher.Constraint("Coincident", 3, 2, 4, 1),
    Sketcher.Constraint("Coincident", 4, 2, 5, 1),
    Sketcher.Constraint("Coincident", 5, 2, 0, 1),
    Sketcher.Constraint("Horizontal", 0),
    Sketcher.Constraint("Horizontal", 3),
    Sketcher.Constraint("Parallel", 1, 4),
    Sketcher.Constraint("Parallel", 2, 5),
    Sketcher.Constraint("Horizontal", 1, 2, 4, 2),
    Sketcher.Constraint("Vertical", 0, 2, 2, 2),
    Sketcher.Constraint("Vertical", 3, 2, 5, 2),
    Sketcher.Constraint("Angle", 1, Q("120 deg")),
    Sketcher.Constraint("DistanceY", -1, 1, 1, 2, 15.0),
    Sketcher.Constraint("DistanceY", 0, 2, 2, 2, 6.9),
    Sketcher.Constraint("DistanceX", 0, 2, 0, 1, 3.983717),
    Sketcher.Constraint("DistanceX", -1, 1, 0, 2, 22.508142),
])
pocket17 = doc.addObject("PartDesign::Pocket", "Pocket016")
body.addObject(pocket17)
pocket17.Profile = sketch21
pocket17.setExpression("Length", "Params.pocket17_length")
doc.recompute()

mirrored4 = doc.addObject("PartDesign::Mirrored", "Mirrored003")
body.addObject(mirrored4)
mirrored4.Originals = [pocket16, pocket17]
mirrored4.MirrorPlane = (doc.YZ_Plane, [""])
body.Tip = mirrored4

sketch22 = doc.addObject("Sketcher::SketchObject", "Sketch021")
body.addObject(sketch22)
sketch22.AttachmentSupport = (doc.XZ_Plane, [""])
sketch22.MapMode = "FlatFace"
sketch22.AttachmentOffset = App.Placement(V(0, 0, -24), App.Rotation())
sketch22.addGeometry(Part.Circle(V(-24.5, 15, 0), V(0, 0, 1), 2), False)
sketch22.addConstraint([
    Sketcher.Constraint("Diameter", 0, 4.0),
    Sketcher.Constraint("DistanceY", -1, 1, 0, 3, 15.0),
    Sketcher.Constraint("DistanceX", 0, 3, -1, 1, 24.5),
])
sketch22.setExpression("Constraints[0]", "Params.sketch22_diameter")
pocket18 = doc.addObject("PartDesign::Pocket", "Pocket017")
body.addObject(pocket18)
pocket18.Profile = sketch22
pocket18.setExpression("Length", "Params.pocket18_length")
pocket18.Reversed = True
pocket19 = doc.addObject("PartDesign::Pocket", "Pocket018")
body.addObject(pocket19)
pocket19.Profile = sketch22
pocket19.setExpression("Length", "Params.pocket19_length")
pocket19.Reversed = True

sketch23 = doc.addObject("Sketcher::SketchObject", "Sketch022")
body.addObject(sketch23)
sketch23.AttachmentSupport = (doc.XZ_Plane, [""])
sketch23.MapMode = "FlatFace"
sketch23.AttachmentOffset = App.Placement(V(0, 0, -24), App.Rotation())
sketch23.addGeometry(Part.Circle(V(24.5, 15, 0), V(0, 0, 1), 2), False)
sketch23.addConstraint([
    Sketcher.Constraint("Diameter", 0, 4.0),
    Sketcher.Constraint("DistanceY", -1, 1, 0, 3, 15.0),
    Sketcher.Constraint("DistanceX", -1, 1, 0, 3, 24.5),
])
sketch23.setExpression("Constraints[0]", "Params.sketch23_diameter")
pocket20 = doc.addObject("PartDesign::Pocket", "Pocket019")
body.addObject(pocket20)
pocket20.Profile = sketch23
pocket20.setExpression("Length", "Params.pocket20_length")
pocket20.Reversed = True
pocket21 = doc.addObject("PartDesign::Pocket", "Pocket020")
body.addObject(pocket21)
pocket21.Profile = sketch23
pocket21.setExpression("Length", "Params.pocket21_length")
pocket21.Reversed = True

doc.recompute()
